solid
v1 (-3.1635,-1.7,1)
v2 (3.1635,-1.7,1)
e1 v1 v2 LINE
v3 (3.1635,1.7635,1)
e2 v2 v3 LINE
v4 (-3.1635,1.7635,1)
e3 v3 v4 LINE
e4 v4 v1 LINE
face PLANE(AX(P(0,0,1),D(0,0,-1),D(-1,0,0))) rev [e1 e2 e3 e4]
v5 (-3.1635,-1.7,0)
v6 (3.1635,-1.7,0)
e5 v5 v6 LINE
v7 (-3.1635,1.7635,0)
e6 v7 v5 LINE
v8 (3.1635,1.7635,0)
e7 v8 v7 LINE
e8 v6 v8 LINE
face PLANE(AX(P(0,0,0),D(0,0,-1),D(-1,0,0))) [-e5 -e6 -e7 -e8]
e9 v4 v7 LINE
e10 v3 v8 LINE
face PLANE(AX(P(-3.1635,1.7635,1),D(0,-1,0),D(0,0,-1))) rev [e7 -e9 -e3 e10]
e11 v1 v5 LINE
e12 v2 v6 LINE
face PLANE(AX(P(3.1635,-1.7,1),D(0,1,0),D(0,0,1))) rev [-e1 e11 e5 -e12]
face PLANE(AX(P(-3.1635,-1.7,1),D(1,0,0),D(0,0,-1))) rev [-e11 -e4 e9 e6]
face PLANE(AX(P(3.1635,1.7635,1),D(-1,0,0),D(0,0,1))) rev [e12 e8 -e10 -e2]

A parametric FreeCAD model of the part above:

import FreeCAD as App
import Part
import Sketcher
from FreeCAD import Vector
Q = App.Units.Quantity


def add_polygon(sketch, points):
    """Adds a closed chain of lines whose ends are joined by coincident constraints."""
    first, n = sketch.GeometryCount, len(points)
    for a, b in zip(points, points[1:] + points[:1]):
        sketch.addGeometry(Part.LineSegment(App.Vector(*a, 0), App.Vector(*b, 0)), False)
    for i in range(n):
        sketch.addConstraint(Sketcher.Constraint("Coincident", first + i, 2, first + (i + 1) % n, 1))

doc = App.newDocument("Part")
body = doc.addObject("PartDesign::Body", "Body")

# Sketch on XY plane
sketch1 = body.newObject("Sketcher::SketchObject", "Sketch")
sketch1.AttachmentSupport = (doc.getObject("XY_Plane"), [""])
sketch1.MapMode = "FlatFace"
add_polygon(sketch1, [(-3.1635, 1.7635), (-3.1635, -1.7), (3.1635, -1.7), (3.1635, 1.7635)])  # lines 0-3
sketch1.addConstraint([
    Sketcher.Constraint("Vertical", 0),
    Sketcher.Constraint("Horizontal", 1),
    Sketcher.Constraint("Vertical", 2),
    Sketcher.Constraint("Horizontal", 3),
    Sketcher.Constraint("DistanceY", 0, 2, -1, 1, Q("1.7 mm")),
    Sketcher.Constraint("DistanceX", 1, 1, 1, 2, Q("6.327 mm")),
    Sketcher.Constraint("DistanceY", 0, 2, 0, 1, Q("3.4635 mm")),
    Sketcher.Constraint("DistanceX", 0, 2, -1, 1, Q("3.1635 mm")),
])
pad1 = body.newObject("PartDesign::Pad", "Pad")
pad1.Profile = sketch1
pad1.Length = 1

doc.recompute()
